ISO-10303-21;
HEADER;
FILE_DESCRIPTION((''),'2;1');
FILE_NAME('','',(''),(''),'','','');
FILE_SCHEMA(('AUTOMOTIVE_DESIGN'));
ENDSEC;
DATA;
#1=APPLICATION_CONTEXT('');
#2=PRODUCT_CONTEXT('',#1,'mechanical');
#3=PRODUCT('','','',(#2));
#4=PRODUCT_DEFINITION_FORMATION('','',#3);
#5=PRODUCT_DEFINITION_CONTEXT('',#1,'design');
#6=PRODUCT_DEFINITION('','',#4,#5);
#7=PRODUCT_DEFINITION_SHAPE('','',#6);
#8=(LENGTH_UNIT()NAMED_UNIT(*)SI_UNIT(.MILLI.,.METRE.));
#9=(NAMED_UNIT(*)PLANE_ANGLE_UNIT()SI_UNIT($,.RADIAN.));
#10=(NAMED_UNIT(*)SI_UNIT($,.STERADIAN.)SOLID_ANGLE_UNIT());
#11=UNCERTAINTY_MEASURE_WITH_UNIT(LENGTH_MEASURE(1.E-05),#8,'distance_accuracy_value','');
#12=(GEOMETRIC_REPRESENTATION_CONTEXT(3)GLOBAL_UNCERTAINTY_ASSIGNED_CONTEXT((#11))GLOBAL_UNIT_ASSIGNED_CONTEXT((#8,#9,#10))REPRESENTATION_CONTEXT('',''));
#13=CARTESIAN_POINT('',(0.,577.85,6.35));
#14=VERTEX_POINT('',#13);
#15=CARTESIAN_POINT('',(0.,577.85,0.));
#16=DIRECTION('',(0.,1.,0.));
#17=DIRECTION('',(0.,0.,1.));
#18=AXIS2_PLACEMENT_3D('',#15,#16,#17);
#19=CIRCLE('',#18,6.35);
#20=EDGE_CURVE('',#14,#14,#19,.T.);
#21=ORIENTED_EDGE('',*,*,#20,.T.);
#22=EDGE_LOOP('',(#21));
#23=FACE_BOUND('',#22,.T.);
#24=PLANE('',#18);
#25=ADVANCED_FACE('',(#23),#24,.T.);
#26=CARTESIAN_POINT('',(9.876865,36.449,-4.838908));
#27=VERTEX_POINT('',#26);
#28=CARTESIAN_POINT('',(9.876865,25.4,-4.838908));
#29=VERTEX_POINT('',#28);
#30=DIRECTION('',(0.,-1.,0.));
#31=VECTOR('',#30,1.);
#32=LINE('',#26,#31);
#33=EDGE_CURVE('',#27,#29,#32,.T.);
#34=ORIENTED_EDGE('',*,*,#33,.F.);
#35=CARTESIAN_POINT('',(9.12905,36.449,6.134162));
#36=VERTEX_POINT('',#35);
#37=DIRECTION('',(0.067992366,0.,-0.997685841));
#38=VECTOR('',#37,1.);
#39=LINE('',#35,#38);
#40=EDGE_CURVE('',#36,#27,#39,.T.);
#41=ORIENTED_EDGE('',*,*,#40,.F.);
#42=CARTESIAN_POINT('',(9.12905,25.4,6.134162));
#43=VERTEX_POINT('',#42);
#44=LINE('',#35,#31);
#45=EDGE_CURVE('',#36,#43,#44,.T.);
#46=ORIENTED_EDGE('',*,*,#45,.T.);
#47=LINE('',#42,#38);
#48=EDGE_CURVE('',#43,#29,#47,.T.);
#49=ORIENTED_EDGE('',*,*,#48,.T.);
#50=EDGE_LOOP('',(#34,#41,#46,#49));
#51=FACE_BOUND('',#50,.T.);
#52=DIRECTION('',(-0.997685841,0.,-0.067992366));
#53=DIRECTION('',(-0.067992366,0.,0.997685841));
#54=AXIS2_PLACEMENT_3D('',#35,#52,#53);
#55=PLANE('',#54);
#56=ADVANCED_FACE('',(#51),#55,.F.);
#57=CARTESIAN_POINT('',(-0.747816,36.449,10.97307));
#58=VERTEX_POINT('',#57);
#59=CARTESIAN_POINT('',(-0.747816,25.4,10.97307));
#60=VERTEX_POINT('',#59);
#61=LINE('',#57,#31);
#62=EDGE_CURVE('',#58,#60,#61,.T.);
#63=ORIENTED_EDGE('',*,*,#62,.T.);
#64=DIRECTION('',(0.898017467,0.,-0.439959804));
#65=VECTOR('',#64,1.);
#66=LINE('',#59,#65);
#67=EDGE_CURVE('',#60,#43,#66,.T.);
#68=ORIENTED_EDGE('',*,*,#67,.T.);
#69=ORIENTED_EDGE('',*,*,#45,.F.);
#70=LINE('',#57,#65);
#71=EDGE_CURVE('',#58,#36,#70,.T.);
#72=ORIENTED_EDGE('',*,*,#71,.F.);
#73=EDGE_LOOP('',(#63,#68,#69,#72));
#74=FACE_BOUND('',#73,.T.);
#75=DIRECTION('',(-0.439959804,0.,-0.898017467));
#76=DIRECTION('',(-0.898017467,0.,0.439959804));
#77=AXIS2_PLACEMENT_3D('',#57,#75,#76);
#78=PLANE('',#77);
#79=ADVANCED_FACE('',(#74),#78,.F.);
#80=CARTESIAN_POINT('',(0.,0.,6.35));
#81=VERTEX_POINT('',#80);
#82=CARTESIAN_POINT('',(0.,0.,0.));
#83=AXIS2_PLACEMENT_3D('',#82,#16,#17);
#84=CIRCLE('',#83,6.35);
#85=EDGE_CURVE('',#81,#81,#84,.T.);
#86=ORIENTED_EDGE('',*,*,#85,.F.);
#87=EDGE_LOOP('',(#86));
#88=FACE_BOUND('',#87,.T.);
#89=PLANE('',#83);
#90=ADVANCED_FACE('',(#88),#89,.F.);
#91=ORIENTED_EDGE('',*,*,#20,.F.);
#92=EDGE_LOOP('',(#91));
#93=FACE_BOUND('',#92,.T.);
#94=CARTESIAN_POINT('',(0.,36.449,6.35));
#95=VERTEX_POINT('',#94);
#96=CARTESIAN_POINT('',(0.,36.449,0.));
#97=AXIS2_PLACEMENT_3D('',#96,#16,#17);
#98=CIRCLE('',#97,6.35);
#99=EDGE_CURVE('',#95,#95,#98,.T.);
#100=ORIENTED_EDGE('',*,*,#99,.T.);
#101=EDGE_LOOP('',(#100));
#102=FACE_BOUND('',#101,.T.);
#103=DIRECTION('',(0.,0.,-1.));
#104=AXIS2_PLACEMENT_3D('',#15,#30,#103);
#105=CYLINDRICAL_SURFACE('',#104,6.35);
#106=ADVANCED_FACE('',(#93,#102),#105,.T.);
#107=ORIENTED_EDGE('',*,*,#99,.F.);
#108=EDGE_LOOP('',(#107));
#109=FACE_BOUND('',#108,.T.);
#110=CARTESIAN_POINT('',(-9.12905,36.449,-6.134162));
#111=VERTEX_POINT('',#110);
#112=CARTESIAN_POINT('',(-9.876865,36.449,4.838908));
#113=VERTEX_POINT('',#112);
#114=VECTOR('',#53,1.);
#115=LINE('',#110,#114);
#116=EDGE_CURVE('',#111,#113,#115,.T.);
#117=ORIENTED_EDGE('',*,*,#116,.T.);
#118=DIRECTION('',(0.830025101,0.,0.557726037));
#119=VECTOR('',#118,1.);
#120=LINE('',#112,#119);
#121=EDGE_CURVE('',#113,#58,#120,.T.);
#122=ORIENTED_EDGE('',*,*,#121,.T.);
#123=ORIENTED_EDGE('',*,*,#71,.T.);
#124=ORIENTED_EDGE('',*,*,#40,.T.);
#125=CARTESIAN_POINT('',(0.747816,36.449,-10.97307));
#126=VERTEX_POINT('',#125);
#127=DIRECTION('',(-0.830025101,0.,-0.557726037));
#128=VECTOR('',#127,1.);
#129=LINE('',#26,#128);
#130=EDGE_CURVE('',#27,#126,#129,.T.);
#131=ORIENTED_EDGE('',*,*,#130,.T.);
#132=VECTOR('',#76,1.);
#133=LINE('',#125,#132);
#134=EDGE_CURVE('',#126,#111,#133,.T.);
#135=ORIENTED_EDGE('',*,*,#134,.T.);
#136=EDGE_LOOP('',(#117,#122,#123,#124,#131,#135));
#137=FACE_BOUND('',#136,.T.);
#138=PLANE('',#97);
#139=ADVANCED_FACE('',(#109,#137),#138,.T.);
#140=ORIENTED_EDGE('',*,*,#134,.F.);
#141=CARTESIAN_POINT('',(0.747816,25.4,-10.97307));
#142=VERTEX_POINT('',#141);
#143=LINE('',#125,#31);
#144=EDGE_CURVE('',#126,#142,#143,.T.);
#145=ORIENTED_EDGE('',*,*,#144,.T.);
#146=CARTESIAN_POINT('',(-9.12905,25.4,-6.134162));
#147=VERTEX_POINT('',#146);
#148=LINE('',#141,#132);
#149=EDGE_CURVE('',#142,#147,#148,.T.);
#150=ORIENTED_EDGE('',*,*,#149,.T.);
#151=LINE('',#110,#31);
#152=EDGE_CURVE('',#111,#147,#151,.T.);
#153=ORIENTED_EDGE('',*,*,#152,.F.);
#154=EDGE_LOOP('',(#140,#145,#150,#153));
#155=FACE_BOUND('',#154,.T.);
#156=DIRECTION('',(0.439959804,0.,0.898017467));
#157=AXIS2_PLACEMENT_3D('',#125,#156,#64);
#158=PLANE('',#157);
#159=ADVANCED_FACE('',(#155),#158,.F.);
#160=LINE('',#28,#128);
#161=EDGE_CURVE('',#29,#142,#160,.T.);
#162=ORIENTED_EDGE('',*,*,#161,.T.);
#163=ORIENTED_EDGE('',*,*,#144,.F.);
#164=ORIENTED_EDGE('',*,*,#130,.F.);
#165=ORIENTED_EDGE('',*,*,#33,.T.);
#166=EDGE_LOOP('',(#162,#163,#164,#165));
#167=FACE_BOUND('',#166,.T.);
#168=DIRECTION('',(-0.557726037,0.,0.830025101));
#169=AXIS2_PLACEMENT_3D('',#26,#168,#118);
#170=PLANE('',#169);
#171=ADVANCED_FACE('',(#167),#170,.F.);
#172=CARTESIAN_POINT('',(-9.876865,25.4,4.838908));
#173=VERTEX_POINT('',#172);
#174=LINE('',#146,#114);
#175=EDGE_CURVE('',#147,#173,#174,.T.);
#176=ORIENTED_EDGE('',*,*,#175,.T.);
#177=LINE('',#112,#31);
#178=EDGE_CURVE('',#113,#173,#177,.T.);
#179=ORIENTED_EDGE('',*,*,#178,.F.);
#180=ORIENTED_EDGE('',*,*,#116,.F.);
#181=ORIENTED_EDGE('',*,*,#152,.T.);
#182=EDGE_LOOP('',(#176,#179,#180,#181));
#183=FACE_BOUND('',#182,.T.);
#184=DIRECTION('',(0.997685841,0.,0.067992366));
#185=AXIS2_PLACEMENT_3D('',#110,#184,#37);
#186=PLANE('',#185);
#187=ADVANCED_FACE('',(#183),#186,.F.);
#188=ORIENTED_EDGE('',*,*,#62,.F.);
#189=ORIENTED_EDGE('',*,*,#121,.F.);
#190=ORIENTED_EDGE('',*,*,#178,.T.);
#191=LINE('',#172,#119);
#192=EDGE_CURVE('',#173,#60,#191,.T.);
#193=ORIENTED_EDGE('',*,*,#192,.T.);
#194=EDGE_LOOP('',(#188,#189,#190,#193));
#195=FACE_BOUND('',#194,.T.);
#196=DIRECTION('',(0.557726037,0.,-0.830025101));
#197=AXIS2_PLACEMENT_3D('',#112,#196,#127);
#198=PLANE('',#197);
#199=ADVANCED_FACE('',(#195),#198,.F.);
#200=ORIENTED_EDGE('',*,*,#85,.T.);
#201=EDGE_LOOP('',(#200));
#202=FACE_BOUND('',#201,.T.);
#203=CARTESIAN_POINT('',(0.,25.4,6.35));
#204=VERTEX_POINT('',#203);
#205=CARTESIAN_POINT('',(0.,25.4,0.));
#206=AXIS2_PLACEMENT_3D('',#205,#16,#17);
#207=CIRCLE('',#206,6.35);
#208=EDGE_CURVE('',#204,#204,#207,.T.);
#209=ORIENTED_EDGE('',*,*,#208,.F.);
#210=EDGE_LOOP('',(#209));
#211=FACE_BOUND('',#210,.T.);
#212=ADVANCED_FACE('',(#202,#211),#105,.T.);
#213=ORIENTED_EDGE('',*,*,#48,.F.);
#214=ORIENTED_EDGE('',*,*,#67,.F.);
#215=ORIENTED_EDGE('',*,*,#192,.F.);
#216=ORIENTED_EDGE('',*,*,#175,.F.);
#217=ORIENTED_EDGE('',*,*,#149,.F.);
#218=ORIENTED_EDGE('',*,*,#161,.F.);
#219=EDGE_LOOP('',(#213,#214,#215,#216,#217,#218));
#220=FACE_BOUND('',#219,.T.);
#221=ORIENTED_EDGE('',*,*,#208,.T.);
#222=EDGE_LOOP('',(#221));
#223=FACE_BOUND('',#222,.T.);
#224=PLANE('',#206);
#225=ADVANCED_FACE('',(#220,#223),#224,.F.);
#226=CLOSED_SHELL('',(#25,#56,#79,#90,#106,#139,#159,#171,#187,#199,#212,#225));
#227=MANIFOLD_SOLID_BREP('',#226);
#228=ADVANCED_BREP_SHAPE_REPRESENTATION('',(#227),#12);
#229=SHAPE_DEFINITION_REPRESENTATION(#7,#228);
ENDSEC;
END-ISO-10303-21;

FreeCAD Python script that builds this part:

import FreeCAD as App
import Part
import Sketcher
from FreeCAD import Vector
Q = App.Units.Quantity

doc = App.newDocument("Part")
body = doc.addObject("PartDesign::Body", "Body")

sketch1 = body.newObject("Sketcher::SketchObject", "Sketch")
sketch1.AttachmentSupport = (doc.getObject("XZ_Plane"), [""])
sketch1.MapMode = "FlatFace"
sketch1.addGeometry(Part.Circle(Vector(0, 0, 0), Vector(0, 0, 1), 6), False)
sketch1.addConstraint(Sketcher.Constraint("Coincident", 0, 3, -1, 1))
sketch1.addConstraint(Sketcher.Constraint("Diameter", 0, Q("0.5 in")))
pad1 = body.newObject("PartDesign::Pad", "Pad")
pad1.Profile = sketch1
pad1.Length = Q("22.75 in")
pad1.Reversed = True

sketch2 = body.newObject("Sketcher::SketchObject", "Sketch001")
sketch2.AttachmentSupport = (doc.getObject("XZ_Plane"), [""])
sketch2.MapMode = "FlatFace"
sketch2.AttachmentOffset = App.Placement(Vector(0, 0, -1 * 25.4), App.Rotation())
sketch2.addGeometry(Part.LineSegment(Vector(10, -5, 0), Vector(1, -11, 0)), False)
sketch2.addGeometry(Part.LineSegment(Vector(1, -11, 0), Vector(-9, -6, 0)), False)
sketch2.addGeometry(Part.LineSegment(Vector(-9, -6, 0), Vector(-10, 5, 0)), False)
sketch2.addGeometry(Part.LineSegment(Vector(-10, 5, 0), Vector(-1, 11, 0)), False)
sketch2.addGeometry(Part.LineSegment(Vector(-1, 11, 0), Vector(9, 6, 0)), False)
sketch2.addGeometry(Part.LineSegment(Vector(9, 6, 0), Vector(10, -5, 0)), False)
sketch2.addConstraint(Sketcher.Constraint("Coincident", 0, 2, 1, 1))
sketch2.addConstraint(Sketcher.Constraint("Coincident", 1, 2, 2, 1))
sketch2.addConstraint(Sketcher.Constraint("Coincident", 2, 2, 3, 1))
sketch2.addConstraint(Sketcher.Constraint("Coincident", 3, 2, 4, 1))
sketch2.addConstraint(Sketcher.Constraint("Coincident", 4, 2, 5, 1))
sketch2.addConstraint(Sketcher.Constraint("Coincident", 5, 2, 0, 1))
sketch2.addConstraint(Sketcher.Constraint("Symmetric", 0, 2, 3, 2, -1, 1))
sketch2.addConstraint(Sketcher.Constraint("Symmetric", 1, 2, 4, 2, -1, 1))
sketch2.addConstraint(Sketcher.Constraint("Symmetric", 2, 2, 5, 2, -1, 1))
sketch2.addConstraint(Sketcher.Constraint("Equal", 0, 1))
sketch2.addConstraint(Sketcher.Constraint("Equal", 1, 2))
sketch2.addConstraint(Sketcher.Constraint("DistanceX", 1, 2, 4, 2, Q("18.2581 mm")))
sketch2.addConstraint(Sketcher.Constraint("DistanceY", 0, 2, -1, 1, Q("10.97307 mm")))
sketch2.addConstraint(Sketcher.Constraint("DistanceY", 1, 2, 2, 2, Q("10.97307 mm")))
sketch2.addConstraint(Sketcher.Constraint("DistanceX", 2, 2, 0, 2, Q("10.624681 mm")))
pad2 = body.newObject("PartDesign::Pad", "Pad001")
pad2.Profile = sketch2
pad2.Length = Q("0.435 in")
pad2.Reversed = True

doc.recompute()
